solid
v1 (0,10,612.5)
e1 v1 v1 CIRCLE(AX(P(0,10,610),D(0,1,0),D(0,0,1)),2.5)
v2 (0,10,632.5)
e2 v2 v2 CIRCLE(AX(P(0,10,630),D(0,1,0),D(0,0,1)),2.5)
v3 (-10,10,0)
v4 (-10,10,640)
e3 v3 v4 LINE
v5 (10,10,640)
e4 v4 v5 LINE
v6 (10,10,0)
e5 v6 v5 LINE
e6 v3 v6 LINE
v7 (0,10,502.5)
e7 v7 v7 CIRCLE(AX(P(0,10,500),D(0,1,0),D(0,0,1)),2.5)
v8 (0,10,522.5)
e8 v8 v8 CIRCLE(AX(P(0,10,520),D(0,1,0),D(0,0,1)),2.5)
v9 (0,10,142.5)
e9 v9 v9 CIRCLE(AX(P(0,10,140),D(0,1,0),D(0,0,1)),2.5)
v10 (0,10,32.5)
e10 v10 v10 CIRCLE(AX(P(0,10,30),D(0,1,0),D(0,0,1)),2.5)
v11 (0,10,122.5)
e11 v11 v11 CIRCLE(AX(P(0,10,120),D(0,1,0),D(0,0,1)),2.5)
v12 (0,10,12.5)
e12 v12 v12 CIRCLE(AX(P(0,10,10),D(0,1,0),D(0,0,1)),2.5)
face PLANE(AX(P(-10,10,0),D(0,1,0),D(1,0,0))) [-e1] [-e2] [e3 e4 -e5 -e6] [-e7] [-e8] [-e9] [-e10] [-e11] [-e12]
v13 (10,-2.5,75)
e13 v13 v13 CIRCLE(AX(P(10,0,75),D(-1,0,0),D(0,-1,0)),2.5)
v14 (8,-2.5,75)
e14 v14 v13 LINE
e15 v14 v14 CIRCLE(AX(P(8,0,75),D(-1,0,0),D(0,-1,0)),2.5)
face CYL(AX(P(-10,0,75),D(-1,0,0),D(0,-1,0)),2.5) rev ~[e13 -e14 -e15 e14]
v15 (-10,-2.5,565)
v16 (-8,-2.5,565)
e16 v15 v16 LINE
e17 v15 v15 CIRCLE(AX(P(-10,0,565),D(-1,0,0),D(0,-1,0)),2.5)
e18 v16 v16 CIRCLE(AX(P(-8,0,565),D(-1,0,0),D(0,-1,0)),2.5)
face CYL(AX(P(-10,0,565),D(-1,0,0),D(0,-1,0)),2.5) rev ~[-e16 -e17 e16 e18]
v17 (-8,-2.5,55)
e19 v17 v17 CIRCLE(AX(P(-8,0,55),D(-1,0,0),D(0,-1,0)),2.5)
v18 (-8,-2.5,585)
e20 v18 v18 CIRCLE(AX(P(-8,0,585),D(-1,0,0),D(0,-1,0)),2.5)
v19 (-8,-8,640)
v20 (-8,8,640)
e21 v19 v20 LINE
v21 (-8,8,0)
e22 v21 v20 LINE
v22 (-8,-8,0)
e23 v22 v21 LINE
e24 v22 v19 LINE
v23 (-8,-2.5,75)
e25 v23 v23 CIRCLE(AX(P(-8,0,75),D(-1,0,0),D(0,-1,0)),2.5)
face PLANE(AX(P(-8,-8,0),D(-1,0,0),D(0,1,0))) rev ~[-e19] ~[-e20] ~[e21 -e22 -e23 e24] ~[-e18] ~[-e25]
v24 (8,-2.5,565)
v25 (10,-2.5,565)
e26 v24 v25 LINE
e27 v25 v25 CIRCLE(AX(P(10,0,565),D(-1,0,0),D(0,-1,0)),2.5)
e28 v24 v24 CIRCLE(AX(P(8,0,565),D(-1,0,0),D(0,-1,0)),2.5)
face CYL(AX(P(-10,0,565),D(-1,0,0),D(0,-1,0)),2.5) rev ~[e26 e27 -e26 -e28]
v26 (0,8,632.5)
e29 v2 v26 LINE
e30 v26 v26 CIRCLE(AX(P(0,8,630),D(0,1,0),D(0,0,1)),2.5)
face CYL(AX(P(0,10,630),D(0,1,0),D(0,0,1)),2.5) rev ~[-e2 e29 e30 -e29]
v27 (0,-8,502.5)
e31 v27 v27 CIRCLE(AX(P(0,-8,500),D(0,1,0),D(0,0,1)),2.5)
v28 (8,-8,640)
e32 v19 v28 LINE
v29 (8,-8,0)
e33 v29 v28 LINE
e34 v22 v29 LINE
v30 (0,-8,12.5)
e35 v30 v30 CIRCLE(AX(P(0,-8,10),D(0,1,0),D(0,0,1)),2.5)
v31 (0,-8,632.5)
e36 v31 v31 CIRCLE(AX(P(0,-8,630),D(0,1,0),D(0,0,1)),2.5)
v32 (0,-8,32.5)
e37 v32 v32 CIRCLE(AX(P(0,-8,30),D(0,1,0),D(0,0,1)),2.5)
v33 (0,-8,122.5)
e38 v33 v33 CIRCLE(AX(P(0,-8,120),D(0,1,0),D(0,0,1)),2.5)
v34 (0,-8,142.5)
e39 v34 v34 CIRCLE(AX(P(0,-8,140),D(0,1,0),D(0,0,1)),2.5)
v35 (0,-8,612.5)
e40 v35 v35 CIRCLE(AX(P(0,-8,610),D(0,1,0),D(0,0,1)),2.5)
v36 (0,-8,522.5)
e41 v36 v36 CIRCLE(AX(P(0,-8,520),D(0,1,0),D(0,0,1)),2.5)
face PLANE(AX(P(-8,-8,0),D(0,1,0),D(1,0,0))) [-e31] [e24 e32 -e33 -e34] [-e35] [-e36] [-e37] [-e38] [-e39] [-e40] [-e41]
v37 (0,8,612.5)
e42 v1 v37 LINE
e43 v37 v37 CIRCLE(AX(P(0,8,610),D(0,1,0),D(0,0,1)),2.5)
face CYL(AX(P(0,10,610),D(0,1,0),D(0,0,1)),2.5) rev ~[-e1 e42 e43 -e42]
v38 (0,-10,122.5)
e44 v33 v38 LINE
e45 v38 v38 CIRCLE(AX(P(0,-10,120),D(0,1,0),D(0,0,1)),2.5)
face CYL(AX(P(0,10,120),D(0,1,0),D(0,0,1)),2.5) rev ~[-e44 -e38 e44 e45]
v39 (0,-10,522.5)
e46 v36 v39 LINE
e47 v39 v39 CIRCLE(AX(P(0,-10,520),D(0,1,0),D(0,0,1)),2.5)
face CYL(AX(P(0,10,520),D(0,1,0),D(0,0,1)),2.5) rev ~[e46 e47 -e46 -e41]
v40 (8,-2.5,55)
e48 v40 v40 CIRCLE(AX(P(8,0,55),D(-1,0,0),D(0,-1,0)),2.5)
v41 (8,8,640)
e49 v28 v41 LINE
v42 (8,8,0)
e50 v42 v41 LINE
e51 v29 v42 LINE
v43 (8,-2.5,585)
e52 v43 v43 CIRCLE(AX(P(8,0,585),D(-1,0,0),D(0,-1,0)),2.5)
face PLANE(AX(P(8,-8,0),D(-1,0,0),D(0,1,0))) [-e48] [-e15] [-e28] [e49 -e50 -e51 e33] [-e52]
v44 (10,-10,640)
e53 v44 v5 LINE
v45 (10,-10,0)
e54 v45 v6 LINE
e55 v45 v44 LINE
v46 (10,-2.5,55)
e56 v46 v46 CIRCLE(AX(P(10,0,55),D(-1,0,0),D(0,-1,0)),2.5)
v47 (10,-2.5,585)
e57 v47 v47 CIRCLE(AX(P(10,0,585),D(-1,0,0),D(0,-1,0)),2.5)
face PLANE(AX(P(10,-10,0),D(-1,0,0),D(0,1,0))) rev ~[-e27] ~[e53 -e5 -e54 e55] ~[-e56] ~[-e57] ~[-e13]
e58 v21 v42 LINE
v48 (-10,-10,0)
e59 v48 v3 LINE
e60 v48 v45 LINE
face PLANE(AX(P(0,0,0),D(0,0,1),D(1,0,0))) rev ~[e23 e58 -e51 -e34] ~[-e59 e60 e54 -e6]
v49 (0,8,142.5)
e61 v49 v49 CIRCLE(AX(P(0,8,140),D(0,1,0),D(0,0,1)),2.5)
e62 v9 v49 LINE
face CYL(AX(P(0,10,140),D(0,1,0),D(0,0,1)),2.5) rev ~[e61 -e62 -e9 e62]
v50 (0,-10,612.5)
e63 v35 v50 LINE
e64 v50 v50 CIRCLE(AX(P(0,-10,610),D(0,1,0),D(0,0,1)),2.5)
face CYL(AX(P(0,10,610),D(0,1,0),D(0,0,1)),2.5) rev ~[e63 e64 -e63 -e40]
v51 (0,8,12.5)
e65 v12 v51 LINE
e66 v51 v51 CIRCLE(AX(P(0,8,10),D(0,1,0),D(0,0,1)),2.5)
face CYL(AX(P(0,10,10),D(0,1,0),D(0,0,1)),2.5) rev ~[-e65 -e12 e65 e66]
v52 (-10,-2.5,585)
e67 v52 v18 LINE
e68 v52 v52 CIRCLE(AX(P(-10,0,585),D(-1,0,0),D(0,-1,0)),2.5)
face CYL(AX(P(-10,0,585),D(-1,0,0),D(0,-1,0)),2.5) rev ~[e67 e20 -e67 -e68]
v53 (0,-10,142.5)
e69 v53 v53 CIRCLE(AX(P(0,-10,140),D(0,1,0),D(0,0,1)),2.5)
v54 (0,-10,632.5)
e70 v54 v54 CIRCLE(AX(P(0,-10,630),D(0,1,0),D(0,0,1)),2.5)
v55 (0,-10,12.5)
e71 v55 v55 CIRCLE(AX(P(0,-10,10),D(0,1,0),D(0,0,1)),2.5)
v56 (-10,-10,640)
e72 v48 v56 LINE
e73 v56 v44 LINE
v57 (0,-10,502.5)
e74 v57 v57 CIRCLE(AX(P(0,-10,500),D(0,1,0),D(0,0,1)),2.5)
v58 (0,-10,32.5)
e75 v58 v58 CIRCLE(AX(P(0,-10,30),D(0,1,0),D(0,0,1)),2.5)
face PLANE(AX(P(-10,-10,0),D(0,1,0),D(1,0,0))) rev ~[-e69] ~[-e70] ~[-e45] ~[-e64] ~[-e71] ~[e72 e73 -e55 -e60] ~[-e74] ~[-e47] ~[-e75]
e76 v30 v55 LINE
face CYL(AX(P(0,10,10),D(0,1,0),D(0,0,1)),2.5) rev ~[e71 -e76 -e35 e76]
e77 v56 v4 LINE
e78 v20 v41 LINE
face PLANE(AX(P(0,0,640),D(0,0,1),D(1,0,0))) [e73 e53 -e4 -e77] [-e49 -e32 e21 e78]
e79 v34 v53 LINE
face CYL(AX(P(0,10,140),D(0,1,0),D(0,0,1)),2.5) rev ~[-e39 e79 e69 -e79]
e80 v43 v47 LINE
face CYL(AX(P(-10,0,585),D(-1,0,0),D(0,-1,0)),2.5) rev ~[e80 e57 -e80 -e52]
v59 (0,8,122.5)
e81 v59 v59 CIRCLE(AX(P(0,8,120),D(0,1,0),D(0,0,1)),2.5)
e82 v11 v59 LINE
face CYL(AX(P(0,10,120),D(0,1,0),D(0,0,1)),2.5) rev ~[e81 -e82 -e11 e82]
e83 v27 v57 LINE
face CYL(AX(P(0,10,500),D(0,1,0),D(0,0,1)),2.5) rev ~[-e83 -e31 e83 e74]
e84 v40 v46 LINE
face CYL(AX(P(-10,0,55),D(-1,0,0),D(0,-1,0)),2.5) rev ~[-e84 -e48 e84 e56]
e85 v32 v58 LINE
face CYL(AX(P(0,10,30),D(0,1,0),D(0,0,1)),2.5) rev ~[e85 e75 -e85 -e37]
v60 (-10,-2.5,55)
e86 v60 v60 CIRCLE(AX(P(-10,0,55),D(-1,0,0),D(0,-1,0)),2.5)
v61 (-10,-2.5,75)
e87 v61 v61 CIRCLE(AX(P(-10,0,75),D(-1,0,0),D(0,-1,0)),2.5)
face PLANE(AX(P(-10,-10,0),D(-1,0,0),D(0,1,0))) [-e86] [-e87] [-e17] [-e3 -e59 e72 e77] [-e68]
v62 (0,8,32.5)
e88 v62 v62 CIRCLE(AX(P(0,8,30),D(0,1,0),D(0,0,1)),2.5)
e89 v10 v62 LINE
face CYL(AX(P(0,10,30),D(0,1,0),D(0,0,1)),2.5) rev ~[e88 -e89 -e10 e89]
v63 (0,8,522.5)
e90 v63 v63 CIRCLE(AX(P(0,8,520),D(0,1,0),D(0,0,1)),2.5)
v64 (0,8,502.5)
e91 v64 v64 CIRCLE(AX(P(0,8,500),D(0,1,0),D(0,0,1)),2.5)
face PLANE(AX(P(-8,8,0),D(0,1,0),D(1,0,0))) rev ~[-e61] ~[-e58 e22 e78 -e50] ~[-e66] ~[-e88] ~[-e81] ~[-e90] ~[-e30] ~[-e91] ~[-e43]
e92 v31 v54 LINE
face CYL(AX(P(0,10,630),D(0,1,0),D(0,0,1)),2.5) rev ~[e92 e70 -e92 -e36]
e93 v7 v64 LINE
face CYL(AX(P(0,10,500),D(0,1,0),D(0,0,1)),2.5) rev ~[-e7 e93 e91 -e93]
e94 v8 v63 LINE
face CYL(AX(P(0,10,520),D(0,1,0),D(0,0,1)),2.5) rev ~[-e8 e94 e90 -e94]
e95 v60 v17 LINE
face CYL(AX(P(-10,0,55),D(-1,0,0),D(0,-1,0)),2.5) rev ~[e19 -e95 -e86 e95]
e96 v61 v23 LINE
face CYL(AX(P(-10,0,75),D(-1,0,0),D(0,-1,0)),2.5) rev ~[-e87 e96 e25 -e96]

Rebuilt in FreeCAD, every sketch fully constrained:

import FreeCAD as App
import Part
import Sketcher
Q = App.Units.Quantity


def add_polygon(sketch, points):
    """Adds a closed chain of lines whose ends are joined by coincident constraints."""
    first, n = sketch.GeometryCount, len(points)
    for a, b in zip(points, points[1:] + points[:1]):
        sketch.addGeometry(Part.LineSegment(App.Vector(*a, 0), App.Vector(*b, 0)), False)
    for i in range(n):
        sketch.addConstraint(Sketcher.Constraint("Coincident", first + i, 2, first + (i + 1) % n, 1))

doc = App.newDocument("Part")
params = doc.addObject("Spreadsheet::Sheet", "Params")
for row, (alias, value) in enumerate([
    ("sketch1_width", "20 mm"),
    ("sketch1_width2", "16 mm"),
    ("pad1_length", "640 mm"),
    ("sketch2_diameter", "5 mm"),
    ("sketch3_diameter", "5 mm"),
    ("sketch4_diameter", "5 mm"),
], start=1):
    params.set(f"A{row}", alias)
    params.set(f"B{row}", "=" + value)
    params.setAlias(f"B{row}", alias)

body = doc.addObject("PartDesign::Body", "Body")

# Sketch on XY plane
sketch1 = body.newObject("Sketcher::SketchObject", "Sketch")
sketch1.AttachmentSupport = (doc.getObject("XY_Plane"), [""])
sketch1.MapMode = "FlatFace"
add_polygon(sketch1, [(-10, 10), (-10, -10), (10, -10), (10, 10)])  # lines 0-3
add_polygon(sketch1, [(8, -8), (-8, -8), (-8, 8), (8, 8)])  # lines 4-7
sketch1.addConstraint([
    Sketcher.Constraint("Vertical", 0),
    Sketcher.Constraint("Horizontal", 1),
    Sketcher.Constraint("Vertical", 2),
    Sketcher.Constraint("Horizontal", 3),
    Sketcher.Constraint("Horizontal", 4),
    Sketcher.Constraint("Vertical", 5),
    Sketcher.Constraint("Horizontal", 6),
    Sketcher.Constraint("Vertical", 7),
    Sketcher.Constraint("Symmetric", 0, 2, 2, 2, -1, 1),
    Sketcher.Constraint("Symmetric", 4, 2, 6, 2, -1, 1),
    Sketcher.Constraint("Equal", 3, 0),
    Sketcher.Constraint("Equal", 6, 5),
    Sketcher.Constraint("DistanceX", 1, 1, 1, 2, Q("20 mm")),
    Sketcher.Constraint("DistanceX", 4, 2, 4, 1, Q("16 mm")),
])
sketch1.setExpression("Constraints[20]", "Params.sketch1_width")
sketch1.setExpression("Constraints[21]", "Params.sketch1_width2")
pad1 = body.newObject("PartDesign::Pad", "Pad")
pad1.Profile = sketch1
pad1.setExpression("Length", "Params.pad1_length")

# Sketch on XZ plane
sketch2 = body.newObject("Sketcher::SketchObject", "Sketch001")
sketch2.AttachmentSupport = (doc.getObject("XZ_Plane"), [""])
sketch2.MapMode = "FlatFace"
sketch2.AttachmentOffset = App.Placement(App.Vector(0, 0, -10), App.Rotation())
sketch2.addGeometry([
    Part.Circle(App.Vector(0, 10, 0), App.Vector(0, 0, 1), 2.5),
    Part.Circle(App.Vector(0, 630, 0), App.Vector(0, 0, 1), 2.5),
    Part.Circle(App.Vector(0, 30, 0), App.Vector(0, 0, 1), 2.5),
    Part.Circle(App.Vector(0, 610, 0), App.Vector(0, 0, 1), 2.5),
], False)
sketch2.addConstraint([
    Sketcher.Constraint("Equal", 0, 1),
    Sketcher.Constraint("Equal", 1, 2),
    Sketcher.Constraint("Equal", 2, 3),
    Sketcher.Constraint("PointOnObject", 0, 3, -2),
    Sketcher.Constraint("PointOnObject", 1, 3, -2),
    Sketcher.Constraint("PointOnObject", 2, 3, -2),
    Sketcher.Constraint("PointOnObject", 3, 3, -2),
    Sketcher.Constraint("Diameter", 0, Q("5 mm")),
    Sketcher.Constraint("DistanceY", -1, 1, 0, 3, Q("10 mm")),
    Sketcher.Constraint("DistanceY", -1, 1, 1, 3, Q("630 mm")),
    Sketcher.Constraint("DistanceY", -1, 1, 2, 3, Q("30 mm")),
    Sketcher.Constraint("DistanceY", -1, 1, 3, 3, Q("610 mm")),
])
sketch2.setExpression("Constraints[7]", "Params.sketch2_diameter")
pocket1 = body.newObject("PartDesign::Pocket", "Pocket")
pocket1.Profile = sketch2
pocket1.Type = "ThroughAll"
pocket1.Reversed = True

# Sketch on XZ plane
sketch3 = body.newObject("Sketcher::SketchObject", "Sketch002")
sketch3.AttachmentSupport = (doc.getObject("XZ_Plane"), [""])
sketch3.MapMode = "FlatFace"
sketch3.AttachmentOffset = App.Placement(App.Vector(0, 0, -10), App.Rotation())
sketch3.addGeometry([
    Part.Circle(App.Vector(0, 140, 0), App.Vector(0, 0, 1), 2.5),
    Part.Circle(App.Vector(0, 500, 0), App.Vector(0, 0, 1), 2.5),
    Part.Circle(App.Vector(0, 120, 0), App.Vector(0, 0, 1), 2.5),
    Part.Circle(App.Vector(0, 520, 0), App.Vector(0, 0, 1), 2.5),
], False)
sketch3.addConstraint([
    Sketcher.Constraint("Equal", 0, 1),
    Sketcher.Constraint("Equal", 1, 2),
    Sketcher.Constraint("Equal", 2, 3),
    Sketcher.Constraint("PointOnObject", 0, 3, -2),
    Sketcher.Constraint("PointOnObject", 1, 3, -2),
    Sketcher.Constraint("PointOnObject", 2, 3, -2),
    Sketcher.Constraint("PointOnObject", 3, 3, -2),
    Sketcher.Constraint("Diameter", 0, Q("5 mm")),
    Sketcher.Constraint("DistanceY", -1, 1, 0, 3, Q("140 mm")),
    Sketcher.Constraint("DistanceY", -1, 1, 1, 3, Q("500 mm")),
    Sketcher.Constraint("DistanceY", -1, 1, 2, 3, Q("120 mm")),
    Sketcher.Constraint("DistanceY", -1, 1, 3, 3, Q("520 mm")),
])
sketch3.setExpression("Constraints[7]", "Params.sketch3_diameter")
pocket2 = body.newObject("PartDesign::Pocket", "Pocket001")
pocket2.Profile = sketch3
pocket2.Type = "ThroughAll"
pocket2.Reversed = True

# Sketch on YZ plane
sketch4 = body.newObject("Sketcher::SketchObject", "Sketch003")
sketch4.AttachmentSupport = (doc.getObject("YZ_Plane"), [""])
sketch4.MapMode = "FlatFace"
sketch4.AttachmentOffset = App.Placement(App.Vector(0, 0, -10), App.Rotation())
sketch4.addGeometry([
    Part.Circle(App.Vector(0, 55, 0), App.Vector(0, 0, 1), 2.5),
    Part.Circle(App.Vector(0, 75, 0), App.Vector(0, 0, 1), 2.5),
    Part.Circle(App.Vector(0, 565, 0), App.Vector(0, 0, 1), 2.5),
    Part.Circle(App.Vector(0, 585, 0), App.Vector(0, 0, 1), 2.5),
], False)
sketch4.addConstraint([
    Sketcher.Constraint("Equal", 0, 1),
    Sketcher.Constraint("Equal", 1, 2),
    Sketcher.Constraint("Equal", 2, 3),
    Sketcher.Constraint("PointOnObject", 0, 3, -2),
    Sketcher.Constraint("PointOnObject", 1, 3, -2),
    Sketcher.Constraint("PointOnObject", 2, 3, -2),
    Sketcher.Constraint("PointOnObject", 3, 3, -2),
    Sketcher.Constraint("Diameter", 0, Q("5 mm")),
    Sketcher.Constraint("DistanceY", -1, 1, 0, 3, Q("55 mm")),
    Sketcher.Constraint("DistanceY", -1, 1, 1, 3, Q("75 mm")),
    Sketcher.Constraint("DistanceY", -1, 1, 2, 3, Q("565 mm")),
    Sketcher.Constraint("DistanceY", -1, 1, 3, 3, Q("585 mm")),
])
sketch4.setExpression("Constraints[7]", "Params.sketch4_diameter")
pocket3 = body.newObject("PartDesign::Pocket", "Pocket002")
pocket3.Profile = sketch4
pocket3.Type = "ThroughAll"
pocket3.Reversed = True

doc.recompute()
